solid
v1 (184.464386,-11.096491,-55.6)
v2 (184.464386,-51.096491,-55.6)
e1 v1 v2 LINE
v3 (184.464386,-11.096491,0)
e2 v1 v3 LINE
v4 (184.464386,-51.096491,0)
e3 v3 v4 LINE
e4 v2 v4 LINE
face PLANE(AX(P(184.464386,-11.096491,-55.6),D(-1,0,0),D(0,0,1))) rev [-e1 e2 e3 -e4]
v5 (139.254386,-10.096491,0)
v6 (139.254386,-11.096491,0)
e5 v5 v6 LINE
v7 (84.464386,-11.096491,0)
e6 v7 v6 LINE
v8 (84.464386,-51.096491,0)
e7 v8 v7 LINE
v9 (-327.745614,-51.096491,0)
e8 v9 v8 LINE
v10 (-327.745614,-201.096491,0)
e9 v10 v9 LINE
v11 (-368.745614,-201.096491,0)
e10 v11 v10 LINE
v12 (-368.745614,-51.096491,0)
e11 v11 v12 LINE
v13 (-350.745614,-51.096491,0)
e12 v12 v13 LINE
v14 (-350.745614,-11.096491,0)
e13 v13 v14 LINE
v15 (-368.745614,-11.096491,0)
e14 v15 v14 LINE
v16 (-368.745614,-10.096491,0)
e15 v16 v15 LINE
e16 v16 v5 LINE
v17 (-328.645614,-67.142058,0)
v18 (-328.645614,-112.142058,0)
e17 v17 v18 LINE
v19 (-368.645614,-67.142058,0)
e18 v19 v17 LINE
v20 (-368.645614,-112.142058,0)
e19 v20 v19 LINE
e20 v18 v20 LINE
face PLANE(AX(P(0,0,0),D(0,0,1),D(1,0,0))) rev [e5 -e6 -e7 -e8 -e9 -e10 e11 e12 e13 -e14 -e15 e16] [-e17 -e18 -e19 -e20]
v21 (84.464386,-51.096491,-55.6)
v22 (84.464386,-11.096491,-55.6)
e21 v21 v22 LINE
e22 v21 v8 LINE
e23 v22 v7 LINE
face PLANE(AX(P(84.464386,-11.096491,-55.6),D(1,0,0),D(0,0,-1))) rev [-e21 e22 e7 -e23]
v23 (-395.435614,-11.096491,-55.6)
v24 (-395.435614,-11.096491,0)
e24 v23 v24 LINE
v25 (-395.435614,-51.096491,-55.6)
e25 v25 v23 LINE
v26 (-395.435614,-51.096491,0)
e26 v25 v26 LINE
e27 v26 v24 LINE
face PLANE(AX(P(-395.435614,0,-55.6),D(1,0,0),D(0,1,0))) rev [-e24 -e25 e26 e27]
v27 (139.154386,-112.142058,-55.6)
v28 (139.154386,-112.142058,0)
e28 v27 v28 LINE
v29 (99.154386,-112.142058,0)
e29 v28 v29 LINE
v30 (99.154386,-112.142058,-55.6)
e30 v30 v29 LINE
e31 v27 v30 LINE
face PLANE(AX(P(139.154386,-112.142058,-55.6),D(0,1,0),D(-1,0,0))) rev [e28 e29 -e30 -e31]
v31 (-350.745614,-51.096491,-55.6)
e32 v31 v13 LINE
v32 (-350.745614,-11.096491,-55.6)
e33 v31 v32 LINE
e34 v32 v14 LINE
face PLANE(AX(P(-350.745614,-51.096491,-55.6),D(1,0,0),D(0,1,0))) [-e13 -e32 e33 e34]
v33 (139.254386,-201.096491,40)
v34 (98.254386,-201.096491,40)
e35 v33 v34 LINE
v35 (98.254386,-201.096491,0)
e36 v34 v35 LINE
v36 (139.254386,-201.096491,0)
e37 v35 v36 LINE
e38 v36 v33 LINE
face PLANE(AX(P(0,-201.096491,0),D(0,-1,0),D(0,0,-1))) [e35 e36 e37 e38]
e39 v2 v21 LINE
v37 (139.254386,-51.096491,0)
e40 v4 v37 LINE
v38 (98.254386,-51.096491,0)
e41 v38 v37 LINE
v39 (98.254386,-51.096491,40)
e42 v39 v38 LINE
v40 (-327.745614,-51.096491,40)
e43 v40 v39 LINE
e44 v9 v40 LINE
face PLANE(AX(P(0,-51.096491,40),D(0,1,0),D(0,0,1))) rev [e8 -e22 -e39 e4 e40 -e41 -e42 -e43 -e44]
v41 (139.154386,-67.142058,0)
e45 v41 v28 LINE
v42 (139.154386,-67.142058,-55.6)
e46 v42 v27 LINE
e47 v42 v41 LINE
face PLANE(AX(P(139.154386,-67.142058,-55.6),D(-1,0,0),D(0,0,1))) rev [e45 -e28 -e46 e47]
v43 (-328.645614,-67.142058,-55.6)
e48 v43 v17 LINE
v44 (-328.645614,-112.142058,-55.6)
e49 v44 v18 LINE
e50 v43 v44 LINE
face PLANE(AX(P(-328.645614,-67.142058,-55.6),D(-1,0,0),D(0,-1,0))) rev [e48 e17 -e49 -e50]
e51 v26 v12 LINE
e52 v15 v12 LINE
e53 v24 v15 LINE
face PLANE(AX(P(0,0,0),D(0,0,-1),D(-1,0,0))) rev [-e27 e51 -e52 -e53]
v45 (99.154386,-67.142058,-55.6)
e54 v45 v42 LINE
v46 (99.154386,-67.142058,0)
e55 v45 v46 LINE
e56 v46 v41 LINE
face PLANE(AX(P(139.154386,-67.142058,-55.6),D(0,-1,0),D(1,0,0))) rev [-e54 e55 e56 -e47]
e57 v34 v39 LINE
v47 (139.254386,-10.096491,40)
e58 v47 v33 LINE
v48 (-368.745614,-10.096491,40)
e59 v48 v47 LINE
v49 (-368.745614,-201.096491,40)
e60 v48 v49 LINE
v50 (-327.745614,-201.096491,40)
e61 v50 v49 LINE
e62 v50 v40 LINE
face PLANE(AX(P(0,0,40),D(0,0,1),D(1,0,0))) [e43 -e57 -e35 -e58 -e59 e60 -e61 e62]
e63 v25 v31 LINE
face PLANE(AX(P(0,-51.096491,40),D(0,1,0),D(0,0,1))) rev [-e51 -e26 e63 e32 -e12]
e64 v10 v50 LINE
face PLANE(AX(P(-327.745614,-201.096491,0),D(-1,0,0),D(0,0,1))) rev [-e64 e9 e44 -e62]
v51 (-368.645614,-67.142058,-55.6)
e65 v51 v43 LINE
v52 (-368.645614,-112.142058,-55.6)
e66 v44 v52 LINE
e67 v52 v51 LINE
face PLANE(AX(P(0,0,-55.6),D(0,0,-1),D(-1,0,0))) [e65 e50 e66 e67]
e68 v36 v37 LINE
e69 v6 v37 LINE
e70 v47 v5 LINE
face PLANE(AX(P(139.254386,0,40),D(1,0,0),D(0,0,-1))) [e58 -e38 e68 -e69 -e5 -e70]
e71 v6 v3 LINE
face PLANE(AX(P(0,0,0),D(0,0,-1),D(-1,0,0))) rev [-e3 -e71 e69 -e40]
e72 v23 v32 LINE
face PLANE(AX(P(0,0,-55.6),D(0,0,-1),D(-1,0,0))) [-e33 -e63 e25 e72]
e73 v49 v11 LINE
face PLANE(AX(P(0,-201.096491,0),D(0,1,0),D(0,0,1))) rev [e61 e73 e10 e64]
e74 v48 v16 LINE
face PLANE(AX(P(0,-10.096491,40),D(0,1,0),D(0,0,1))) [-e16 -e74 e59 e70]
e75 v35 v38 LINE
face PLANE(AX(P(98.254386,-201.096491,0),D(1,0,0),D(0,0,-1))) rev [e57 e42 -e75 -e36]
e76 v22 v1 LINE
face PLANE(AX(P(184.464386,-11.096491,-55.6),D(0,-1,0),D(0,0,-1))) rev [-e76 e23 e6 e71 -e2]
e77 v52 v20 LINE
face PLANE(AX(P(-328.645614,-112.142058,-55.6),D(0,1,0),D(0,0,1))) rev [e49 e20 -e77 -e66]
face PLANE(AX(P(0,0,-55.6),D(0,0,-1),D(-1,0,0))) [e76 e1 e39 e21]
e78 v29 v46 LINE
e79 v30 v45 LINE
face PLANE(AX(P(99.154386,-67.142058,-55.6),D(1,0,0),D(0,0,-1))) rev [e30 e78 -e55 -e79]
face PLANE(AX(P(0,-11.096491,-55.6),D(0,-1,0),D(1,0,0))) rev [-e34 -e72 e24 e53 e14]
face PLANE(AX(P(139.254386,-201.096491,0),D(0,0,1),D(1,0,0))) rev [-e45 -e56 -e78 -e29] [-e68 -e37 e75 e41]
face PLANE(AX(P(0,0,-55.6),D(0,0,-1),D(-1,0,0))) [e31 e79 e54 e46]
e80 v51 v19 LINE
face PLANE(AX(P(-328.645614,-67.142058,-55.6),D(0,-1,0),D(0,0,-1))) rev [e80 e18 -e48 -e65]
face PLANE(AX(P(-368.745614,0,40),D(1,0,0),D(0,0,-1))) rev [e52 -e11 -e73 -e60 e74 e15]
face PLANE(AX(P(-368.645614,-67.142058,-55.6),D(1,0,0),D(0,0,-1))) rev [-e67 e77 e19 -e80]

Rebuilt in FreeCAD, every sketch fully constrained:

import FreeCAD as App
import Part
import Sketcher

V = App.Vector

doc = App.newDocument("Part")
body = doc.addObject("PartDesign::Body", "Body")

# Sketch on XY plane
sketch1 = body.newObject("Sketcher::SketchObject", "Sketch")
sketch1.AttachmentSupport = (doc.getObject("XY_Plane"), [""])
sketch1.MapMode = "FlatFace"
sketch1.addGeometry([
    Part.LineSegment(V(-369, -10, 0), V(-369, -51, 0)),
    Part.LineSegment(V(-369, -51, 0), V(139, -51, 0)),
    Part.LineSegment(V(139, -51, 0), V(139, -10, 0)),
    Part.LineSegment(V(139, -10, 0), V(-369, -10, 0)),
], False)
sketch1.addConstraint([
    Sketcher.Constraint("Coincident", 0, 2, 1, 1),
    Sketcher.Constraint("Coincident", 1, 2, 2, 1),
    Sketcher.Constraint("Coincident", 2, 2, 3, 1),
    Sketcher.Constraint("Coincident", 3, 2, 0, 1),
    Sketcher.Constraint("Vertical", 0),
    Sketcher.Constraint("Horizontal", 1),
    Sketcher.Constraint("Vertical", 2),
    Sketcher.Constraint("Horizontal", 3),
    Sketcher.Constraint("DistanceX", 1, 1, 1, 2, 508.0),
    Sketcher.Constraint("DistanceY", 0, 2, 0, 1, 41.0),
    Sketcher.Constraint("DistanceY", 0, 2, -1, 1, 51.096491),
    Sketcher.Constraint("DistanceX", 0, 2, -1, 1, 368.745614),
])
pad1 = body.newObject("PartDesign::Pad", "Pad")
pad1.Profile = sketch1
pad1.Length = 40

# Sketch on XY plane
sketch2 = body.newObject("Sketcher::SketchObject", "Sketch001")
sketch2.AttachmentSupport = (doc.getObject("XY_Plane"), [""])
sketch2.MapMode = "FlatFace"
sketch2.addGeometry([
    Part.LineSegment(V(-351, -11, 0), V(-351, -51, 0)),
    Part.LineSegment(V(-351, -51, 0), V(-395, -51, 0)),
    Part.LineSegment(V(-395, -51, 0), V(-395, -11, 0)),
    Part.LineSegment(V(-395, -11, 0), V(-351, -11, 0)),
], False)
sketch2.addConstraint([
    Sketcher.Constraint("Coincident", 0, 2, 1, 1),
    Sketcher.Constraint("Coincident", 1, 2, 2, 1),
    Sketcher.Constraint("Coincident", 2, 2, 3, 1),
    Sketcher.Constraint("Coincident", 3, 2, 0, 1),
    Sketcher.Constraint("Vertical", 0),
    Sketcher.Constraint("Horizontal", 1),
    Sketcher.Constraint("Vertical", 2),
    Sketcher.Constraint("Horizontal", 3),
    Sketcher.Constraint("DistanceY", 0, 2, 0, 1, 40.0),
    Sketcher.Constraint("DistanceX", 1, 2, 1, 1, 44.69),
    Sketcher.Constraint("DistanceY", 0, 2, -1, 1, 51.096491),
    Sketcher.Constraint("DistanceX", 0, 2, -1, 1, 350.745614),
])
pad2 = body.newObject("PartDesign::Pad", "Pad001")
pad2.Profile = sketch2
pad2.Length = 55.6
pad2.Reversed = True

# Sketch on XY plane
sketch3 = body.newObject("Sketcher::SketchObject", "Sketch002")
sketch3.AttachmentSupport = (doc.getObject("XY_Plane"), [""])
sketch3.MapMode = "FlatFace"
sketch3.addGeometry([
    Part.LineSegment(V(184, -11, 0), V(184, -51, 0)),
    Part.LineSegment(V(184, -51, 0), V(84, -51, 0)),
    Part.LineSegment(V(84, -51, 0), V(84, -11, 0)),
    Part.LineSegment(V(84, -11, 0), V(184, -11, 0)),
], False)
sketch3.addConstraint([
    Sketcher.Constraint("Coincident", 0, 2, 1, 1),
    Sketcher.Constraint("Coincident", 1, 2, 2, 1),
    Sketcher.Constraint("Coincident", 2, 2, 3, 1),
    Sketcher.Constraint("Coincident", 3, 2, 0, 1),
    Sketcher.Constraint("Vertical", 0),
    Sketcher.Constraint("Horizontal", 1),
    Sketcher.Constraint("Vertical", 2),
    Sketcher.Constraint("Horizontal", 3),
    Sketcher.Constraint("DistanceX", 1, 2, 1, 1, 100.0),
    Sketcher.Constraint("DistanceY", 0, 2, 0, 1, 40.0),
    Sketcher.Constraint("DistanceY", 0, 2, -1, 1, 51.096491),
    Sketcher.Constraint("DistanceX", -1, 1, 0, 2, 184.464386),
])
pad3 = body.newObject("PartDesign::Pad", "Pad002")
pad3.Profile = sketch3
pad3.Length = 55.6
pad3.Reversed = True

# Sketch on XZ plane
sketch4 = body.newObject("Sketcher::SketchObject", "Sketch003")
sketch4.AttachmentSupport = (doc.getObject("XZ_Plane"), [""])
sketch4.MapMode = "FlatFace"
sketch4.AttachmentOffset = App.Placement(V(0, 0, 51.096491), App.Rotation())
sketch4.addGeometry([
    Part.LineSegment(V(98, 40, 0), V(98, 0, 0)),  # 0
    Part.LineSegment(V(98, 0, 0), V(139, 0, 0)),  # 1
    Part.LineSegment(V(139, 0, 0), V(139, 40, 0)),  # 2
    Part.LineSegment(V(139, 40, 0), V(98, 40, 0)),  # 3
    Part.LineSegment(V(-369, 40, 0), V(-369, 0, 0)),  # 4
    Part.LineSegment(V(-369, 0, 0), V(-328, 0, 0)),  # 5
    Part.LineSegment(V(-328, 0, 0), V(-328, 40, 0)),  # 6
    Part.LineSegment(V(-328, 40, 0), V(-369, 40, 0)),  # 7
], False)
sketch4.addConstraint([
    Sketcher.Constraint("Coincident", 0, 2, 1, 1),
    Sketcher.Constraint("Coincident", 1, 2, 2, 1),
    Sketcher.Constraint("Coincident", 2, 2, 3, 1),
    Sketcher.Constraint("Coincident", 3, 2, 0, 1),
    Sketcher.Constraint("Coincident", 4, 2, 5, 1),
    Sketcher.Constraint("Coincident", 5, 2, 6, 1),
    Sketcher.Constraint("Coincident", 6, 2, 7, 1),
    Sketcher.Constraint("Coincident", 7, 2, 4, 1),
    Sketcher.Constraint("Vertical", 0),
    Sketcher.Constraint("Horizontal", 1),
    Sketcher.Constraint("Vertical", 2),
    Sketcher.Constraint("Horizontal", 3),
    Sketcher.Constraint("Vertical", 4),
    Sketcher.Constraint("Horizontal", 5),
    Sketcher.Constraint("Vertical", 6),
    Sketcher.Constraint("Horizontal", 7),
    Sketcher.Constraint("PointOnObject", 0, 2, -1),
    Sketcher.Constraint("PointOnObject", 4, 2, -1),
    Sketcher.Constraint("Horizontal", 3, 2, 6, 2),
    Sketcher.Constraint("Equal", 3, 5),
    Sketcher.Constraint("DistanceX", 1, 1, 1, 2, 41.0),
    Sketcher.Constraint("DistanceY", 0, 2, 0, 1, 40.0),
    Sketcher.Constraint("DistanceX", 4, 2, 0, 2, 467.0),
    Sketcher.Constraint("DistanceX", -1, 1, 0, 2, 98.254386),
])
pad4 = body.newObject("PartDesign::Pad", "Pad003")
pad4.Profile = sketch4
pad4.Length = 150

# Sketch on XY plane
sketch5 = body.newObject("Sketcher::SketchObject", "Sketch004")
sketch5.AttachmentSupport = (doc.getObject("XY_Plane"), [""])
sketch5.MapMode = "FlatFace"
sketch5.addGeometry([
    Part.LineSegment(V(139, -67, 0), V(139, -112, 0)),  # 0
    Part.LineSegment(V(139, -112, 0), V(99, -112, 0)),  # 1
    Part.LineSegment(V(99, -112, 0), V(99, -67, 0)),  # 2
    Part.LineSegment(V(99, -67, 0), V(139, -67, 0)),  # 3
    Part.LineSegment(V(-329, -67, 0), V(-329, -112, 0)),  # 4
    Part.LineSegment(V(-329, -112, 0), V(-369, -112, 0)),  # 5
    Part.LineSegment(V(-369, -112, 0), V(-369, -67, 0)),  # 6
    Part.LineSegment(V(-369, -67, 0), V(-329, -67, 0)),  # 7
], False)
sketch5.addConstraint([
    Sketcher.Constraint("Coincident", 0, 2, 1, 1),
    Sketcher.Constraint("Coincident", 1, 2, 2, 1),
    Sketcher.Constraint("Coincident", 2, 2, 3, 1),
    Sketcher.Constraint("Coincident", 3, 2, 0, 1),
    Sketcher.Constraint("Coincident", 4, 2, 5, 1),
    Sketcher.Constraint("Coincident", 5, 2, 6, 1),
    Sketcher.Constraint("Coincident", 6, 2, 7, 1),
    Sketcher.Constraint("Coincident", 7, 2, 4, 1),
    Sketcher.Constraint("Vertical", 0),
    Sketcher.Constraint("Horizontal", 1),
    Sketcher.Constraint("Vertical", 2),
    Sketcher.Constraint("Horizontal", 3),
    Sketcher.Constraint("Vertical", 4),
    Sketcher.Constraint("Horizontal", 5),
    Sketcher.Constraint("Vertical", 6),
    Sketcher.Constraint("Horizontal", 7),
    Sketcher.Constraint("Horizontal", 1, 2, 4, 2),
    Sketcher.Constraint("Horizontal", 3, 2, 6, 2),
    Sketcher.Constraint("Equal", 3, 5),
    Sketcher.Constraint("DistanceX", 1, 2, 1, 1, 40.0),
    Sketcher.Constraint("DistanceY", 0, 2, 0, 1, 45.0),
    Sketcher.Constraint("DistanceX", 4, 2, 1, 2, 427.8),
    Sketcher.Constraint("DistanceX", -1, 1, 0, 2, 139.154386),
    Sketcher.Constraint("DistanceY", 0, 2, -1, 1, 112.142058),
])
pad5 = body.newObject("PartDesign::Pad", "Pad004")
pad5.Profile = sketch5
pad5.Length = 55.6
pad5.Reversed = True

doc.recompute()
